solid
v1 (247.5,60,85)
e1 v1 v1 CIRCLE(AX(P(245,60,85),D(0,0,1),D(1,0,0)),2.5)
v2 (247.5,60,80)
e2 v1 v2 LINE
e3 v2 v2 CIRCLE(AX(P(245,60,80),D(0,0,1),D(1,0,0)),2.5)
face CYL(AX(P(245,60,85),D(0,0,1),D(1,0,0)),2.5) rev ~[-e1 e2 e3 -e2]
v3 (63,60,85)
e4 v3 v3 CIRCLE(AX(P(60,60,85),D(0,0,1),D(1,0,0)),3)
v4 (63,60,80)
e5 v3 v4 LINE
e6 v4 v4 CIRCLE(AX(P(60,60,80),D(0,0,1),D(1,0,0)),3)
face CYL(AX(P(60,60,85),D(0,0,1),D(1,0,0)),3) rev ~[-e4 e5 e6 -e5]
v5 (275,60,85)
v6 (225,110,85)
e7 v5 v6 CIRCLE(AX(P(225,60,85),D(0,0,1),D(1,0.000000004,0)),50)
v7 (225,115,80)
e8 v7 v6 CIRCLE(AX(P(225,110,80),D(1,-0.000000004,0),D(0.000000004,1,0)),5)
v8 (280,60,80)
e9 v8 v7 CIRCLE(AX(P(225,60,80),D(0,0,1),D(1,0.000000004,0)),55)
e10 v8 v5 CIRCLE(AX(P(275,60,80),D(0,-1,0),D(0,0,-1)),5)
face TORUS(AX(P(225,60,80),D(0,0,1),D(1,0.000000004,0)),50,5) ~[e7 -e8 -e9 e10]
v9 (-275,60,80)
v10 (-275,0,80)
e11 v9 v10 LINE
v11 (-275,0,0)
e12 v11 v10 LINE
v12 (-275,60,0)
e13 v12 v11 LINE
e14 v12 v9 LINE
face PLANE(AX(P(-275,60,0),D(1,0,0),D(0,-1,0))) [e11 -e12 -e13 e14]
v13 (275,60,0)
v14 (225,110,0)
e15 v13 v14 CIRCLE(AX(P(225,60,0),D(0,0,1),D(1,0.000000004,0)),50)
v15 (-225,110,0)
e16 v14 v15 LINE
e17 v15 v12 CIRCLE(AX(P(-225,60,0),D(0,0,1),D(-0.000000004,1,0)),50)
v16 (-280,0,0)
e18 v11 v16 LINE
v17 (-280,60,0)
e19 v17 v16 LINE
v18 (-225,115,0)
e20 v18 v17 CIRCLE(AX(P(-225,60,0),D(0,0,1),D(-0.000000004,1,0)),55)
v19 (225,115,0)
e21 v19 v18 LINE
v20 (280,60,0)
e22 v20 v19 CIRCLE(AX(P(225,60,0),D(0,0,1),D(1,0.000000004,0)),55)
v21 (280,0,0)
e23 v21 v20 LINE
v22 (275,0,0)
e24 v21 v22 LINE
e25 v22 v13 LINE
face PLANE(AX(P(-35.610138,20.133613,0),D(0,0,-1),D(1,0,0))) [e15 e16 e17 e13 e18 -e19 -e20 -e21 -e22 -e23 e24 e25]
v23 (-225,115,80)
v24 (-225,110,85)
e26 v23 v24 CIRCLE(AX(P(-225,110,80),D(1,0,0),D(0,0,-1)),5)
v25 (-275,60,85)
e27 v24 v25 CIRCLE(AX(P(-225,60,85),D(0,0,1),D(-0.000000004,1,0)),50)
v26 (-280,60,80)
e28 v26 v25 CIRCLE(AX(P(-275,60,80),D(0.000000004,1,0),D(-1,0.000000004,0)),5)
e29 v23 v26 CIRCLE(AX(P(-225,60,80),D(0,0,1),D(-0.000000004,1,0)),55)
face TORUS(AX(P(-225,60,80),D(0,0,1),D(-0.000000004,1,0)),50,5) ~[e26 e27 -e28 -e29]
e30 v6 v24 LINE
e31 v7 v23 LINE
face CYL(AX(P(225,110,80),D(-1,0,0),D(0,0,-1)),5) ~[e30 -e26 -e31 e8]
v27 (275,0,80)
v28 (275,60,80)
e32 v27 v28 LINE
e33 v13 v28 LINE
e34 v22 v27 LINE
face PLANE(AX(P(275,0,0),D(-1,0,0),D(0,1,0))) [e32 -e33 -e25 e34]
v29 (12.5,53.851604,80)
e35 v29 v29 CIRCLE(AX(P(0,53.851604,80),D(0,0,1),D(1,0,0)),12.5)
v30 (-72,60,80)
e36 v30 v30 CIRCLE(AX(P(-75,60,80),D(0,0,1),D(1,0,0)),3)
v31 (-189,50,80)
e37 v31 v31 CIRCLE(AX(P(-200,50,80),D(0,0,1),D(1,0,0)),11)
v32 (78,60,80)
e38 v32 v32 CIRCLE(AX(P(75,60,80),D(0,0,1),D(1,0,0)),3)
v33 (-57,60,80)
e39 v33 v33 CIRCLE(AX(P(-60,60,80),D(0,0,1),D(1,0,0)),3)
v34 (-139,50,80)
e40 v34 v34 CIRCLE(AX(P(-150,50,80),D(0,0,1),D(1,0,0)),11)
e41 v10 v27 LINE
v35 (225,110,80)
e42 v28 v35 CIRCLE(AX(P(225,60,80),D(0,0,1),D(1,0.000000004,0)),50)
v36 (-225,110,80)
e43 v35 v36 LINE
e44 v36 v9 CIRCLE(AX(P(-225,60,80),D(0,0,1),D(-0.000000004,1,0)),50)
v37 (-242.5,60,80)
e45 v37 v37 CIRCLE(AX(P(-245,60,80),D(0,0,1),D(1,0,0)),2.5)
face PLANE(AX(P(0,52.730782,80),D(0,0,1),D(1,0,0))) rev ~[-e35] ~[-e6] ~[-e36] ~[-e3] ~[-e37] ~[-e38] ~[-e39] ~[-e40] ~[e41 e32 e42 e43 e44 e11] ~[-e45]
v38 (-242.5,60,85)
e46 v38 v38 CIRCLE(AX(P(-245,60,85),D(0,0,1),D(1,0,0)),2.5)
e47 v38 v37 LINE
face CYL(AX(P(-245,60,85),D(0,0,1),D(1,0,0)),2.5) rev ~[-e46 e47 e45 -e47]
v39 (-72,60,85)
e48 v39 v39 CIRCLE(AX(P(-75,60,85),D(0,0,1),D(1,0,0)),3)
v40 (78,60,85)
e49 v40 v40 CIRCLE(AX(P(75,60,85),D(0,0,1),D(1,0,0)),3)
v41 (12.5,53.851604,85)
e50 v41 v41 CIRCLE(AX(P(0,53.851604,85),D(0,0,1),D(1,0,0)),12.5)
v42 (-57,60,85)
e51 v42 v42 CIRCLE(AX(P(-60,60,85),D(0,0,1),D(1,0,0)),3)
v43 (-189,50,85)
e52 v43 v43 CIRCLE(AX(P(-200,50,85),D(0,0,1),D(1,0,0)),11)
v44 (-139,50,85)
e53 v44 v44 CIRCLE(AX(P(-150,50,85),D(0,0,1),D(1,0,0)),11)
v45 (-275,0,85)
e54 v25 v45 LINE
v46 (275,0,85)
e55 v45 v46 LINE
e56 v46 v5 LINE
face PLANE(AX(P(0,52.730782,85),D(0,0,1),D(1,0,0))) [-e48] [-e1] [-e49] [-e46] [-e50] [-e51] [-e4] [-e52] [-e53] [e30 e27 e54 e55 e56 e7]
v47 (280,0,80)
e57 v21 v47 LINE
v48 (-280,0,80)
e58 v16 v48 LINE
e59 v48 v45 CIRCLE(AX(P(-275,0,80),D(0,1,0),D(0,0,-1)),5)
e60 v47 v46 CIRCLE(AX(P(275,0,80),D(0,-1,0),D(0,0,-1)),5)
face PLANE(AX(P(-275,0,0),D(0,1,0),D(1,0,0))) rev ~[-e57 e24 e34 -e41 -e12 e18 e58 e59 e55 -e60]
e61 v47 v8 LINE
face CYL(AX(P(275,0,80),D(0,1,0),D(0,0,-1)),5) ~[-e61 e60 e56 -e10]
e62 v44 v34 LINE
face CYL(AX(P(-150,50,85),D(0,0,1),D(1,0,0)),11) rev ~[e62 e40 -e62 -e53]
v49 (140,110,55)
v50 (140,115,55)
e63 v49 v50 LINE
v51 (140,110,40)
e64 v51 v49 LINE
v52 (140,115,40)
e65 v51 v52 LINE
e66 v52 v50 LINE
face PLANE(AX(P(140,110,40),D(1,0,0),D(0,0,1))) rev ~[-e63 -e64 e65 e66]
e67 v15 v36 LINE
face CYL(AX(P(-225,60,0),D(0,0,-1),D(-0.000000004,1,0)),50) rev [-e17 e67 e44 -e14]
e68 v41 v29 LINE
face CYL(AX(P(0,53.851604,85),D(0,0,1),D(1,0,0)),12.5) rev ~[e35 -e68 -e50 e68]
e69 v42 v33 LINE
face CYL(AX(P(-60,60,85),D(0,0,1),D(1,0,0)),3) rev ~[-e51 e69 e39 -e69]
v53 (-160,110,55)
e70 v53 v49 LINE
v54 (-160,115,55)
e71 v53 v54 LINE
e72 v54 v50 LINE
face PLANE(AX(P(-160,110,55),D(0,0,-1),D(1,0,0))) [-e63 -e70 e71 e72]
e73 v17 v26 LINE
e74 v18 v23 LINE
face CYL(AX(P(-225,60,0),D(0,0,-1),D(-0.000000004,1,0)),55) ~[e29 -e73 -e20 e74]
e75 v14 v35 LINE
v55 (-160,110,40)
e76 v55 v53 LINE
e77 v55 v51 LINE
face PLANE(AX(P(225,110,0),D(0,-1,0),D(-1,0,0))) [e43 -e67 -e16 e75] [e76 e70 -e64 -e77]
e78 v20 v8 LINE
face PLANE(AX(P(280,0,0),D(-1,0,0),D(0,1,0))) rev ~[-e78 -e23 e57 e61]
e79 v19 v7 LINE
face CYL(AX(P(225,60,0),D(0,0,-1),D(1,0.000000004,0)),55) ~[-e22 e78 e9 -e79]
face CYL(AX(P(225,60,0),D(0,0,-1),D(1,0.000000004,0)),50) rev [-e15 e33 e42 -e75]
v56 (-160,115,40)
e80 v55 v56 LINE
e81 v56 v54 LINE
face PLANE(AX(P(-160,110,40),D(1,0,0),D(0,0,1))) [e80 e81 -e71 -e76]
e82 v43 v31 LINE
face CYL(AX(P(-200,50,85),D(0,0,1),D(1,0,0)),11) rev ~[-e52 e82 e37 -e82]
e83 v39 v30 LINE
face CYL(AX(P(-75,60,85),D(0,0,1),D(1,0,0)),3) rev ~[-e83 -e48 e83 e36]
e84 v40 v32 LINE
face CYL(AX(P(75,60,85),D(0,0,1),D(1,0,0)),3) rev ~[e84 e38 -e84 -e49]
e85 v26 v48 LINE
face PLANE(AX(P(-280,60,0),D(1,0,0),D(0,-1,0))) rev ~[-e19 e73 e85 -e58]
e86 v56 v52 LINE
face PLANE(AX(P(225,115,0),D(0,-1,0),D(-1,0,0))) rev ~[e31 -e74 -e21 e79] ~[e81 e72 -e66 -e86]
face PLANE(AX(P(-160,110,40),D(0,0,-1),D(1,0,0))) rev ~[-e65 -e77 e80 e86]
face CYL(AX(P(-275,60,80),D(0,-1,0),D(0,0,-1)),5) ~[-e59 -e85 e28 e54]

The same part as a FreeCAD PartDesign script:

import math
import FreeCAD as App
import Part
import Sketcher

V = App.Vector
Q = App.Units.Quantity


def faces_at(feature, points):
    """Names of the faces that lie closest to the given points."""
    faces = feature.Shape.Faces
    near = lambda p: min(range(len(faces)), key=lambda i: faces[i].distToShape(Part.Vertex(*p))[0])
    return sorted({f"Face{near(p) + 1}" for p in points})

doc = App.newDocument("Part")
body = doc.addObject("PartDesign::Body", "Body")

# Sketch on XY plane
sketch1 = body.newObject("Sketcher::SketchObject", "Sketch")
sketch1.AttachmentSupport = (doc.getObject("XY_Plane"), [""])
sketch1.MapMode = "FlatFace"
sketch1.addGeometry([
    Part.LineSegment(V(275, 0, 0), V(275, 60, 0)),  # 0
    Part.ArcOfCircle(Part.Circle(V(225, 60, 0), V(0, 0, 1), 50), math.radians(0), math.radians(90)),  # 1
    Part.LineSegment(V(225, 110, 0), V(-225, 110, 0)),  # 2
    Part.ArcOfCircle(Part.Circle(V(-225, 60, 0), V(0, 0, 1), 50), math.radians(90), math.radians(180)),  # 3
    Part.LineSegment(V(-275, 60, 0), V(-275, 0, 0)),  # 4
    Part.LineSegment(V(-275, 0, 0), V(275, 0, 0)),  # 5
], False)
sketch1.addConstraint([
    Sketcher.Constraint("Tangent", 0, 2, 1, 1),
    Sketcher.Constraint("Tangent", 1, 2, 2, 1),
    Sketcher.Constraint("Tangent", 2, 2, 3, 1),
    Sketcher.Constraint("Tangent", 3, 2, 4, 1),
    Sketcher.Constraint("Coincident", 4, 2, 5, 1),
    Sketcher.Constraint("Coincident", 5, 2, 0, 1),
    Sketcher.Constraint("Vertical", 0),
    Sketcher.Constraint("Horizontal", 2),
    Sketcher.Constraint("Vertical", 4),
    Sketcher.Constraint("Horizontal", 5),
    Sketcher.Constraint("Equal", 1, 3),
    Sketcher.Constraint("Symmetric", 4, 2, 5, 2, -1, 1),
    Sketcher.Constraint("Radius", 1, Q("50 mm")),
    Sketcher.Constraint("DistanceX", 2, 2, 2, 1, Q("450 mm")),
    Sketcher.Constraint("DistanceY", 0, 1, 0, 2, Q("60 mm")),
])
pad1 = body.newObject("PartDesign::Pad", "Pad")
pad1.Profile = sketch1
pad1.Length = 80
doc.recompute()

thickness = body.newObject("PartDesign::Thickness", "Thickness")
thickness.Base = (pad1, faces_at(pad1, [(0, 0, 40)]))
thickness.Value = 5
thickness.Reversed = False
thickness.Join = "Arc"

# Sketch on XY plane
sketch2 = body.newObject("Sketcher::SketchObject", "Sketch001")
sketch2.AttachmentSupport = (doc.getObject("XY_Plane"), [""])
sketch2.MapMode = "FlatFace"
sketch2.AttachmentOffset = App.Placement(V(0, 0, 85), App.Rotation())
sketch2.addGeometry([
    Part.Circle(V(-200, 50, 0), V(0, 0, 1), 11),
    Part.Circle(V(-150, 50, 0), V(0, 0, 1), 11),
    Part.Circle(V(-245, 60, 0), V(0, 0, 1), 2.5),
    Part.Circle(V(245, 60, 0), V(0, 0, 1), 2.5),
], False)
sketch2.addConstraint([
    Sketcher.Constraint("Equal", 0, 1),
    Sketcher.Constraint("Equal", 2, 3),
    Sketcher.Constraint("Symmetric", 2, 3, 3, 3, -2),
    Sketcher.Constraint("Horizontal", 0, 3, 1, 3),
    Sketcher.Constraint("Diameter", 0, Q("22 mm")),
    Sketcher.Constraint("Diameter", 2, Q("5 mm")),
    Sketcher.Constraint("DistanceX", 0, 3, -1, 1, Q("200 mm")),
    Sketcher.Constraint("DistanceY", -1, 1, 0, 3, Q("50 mm")),
    Sketcher.Constraint("DistanceX", 1, 3, -1, 1, Q("150 mm")),
    Sketcher.Constraint("DistanceX", 2, 3, -1, 1, Q("245 mm")),
    Sketcher.Constraint("DistanceY", -1, 1, 2, 3, Q("60 mm")),
])
pocket1 = body.newObject("PartDesign::Pocket", "Pocket")
pocket1.Profile = sketch2
pocket1.Length = 5

# Sketch on XZ plane
sketch3 = body.newObject("Sketcher::SketchObject", "Sketch002")
sketch3.AttachmentSupport = (doc.getObject("XZ_Plane"), [""])
sketch3.MapMode = "FlatFace"
sketch3.AttachmentOffset = App.Placement(V(0, 0, -110), App.Rotation())
sketch3.addGeometry([
    Part.LineSegment(V(-160, 55, 0), V(-160, 40, 0)),
    Part.LineSegment(V(-160, 40, 0), V(140, 40, 0)),
    Part.LineSegment(V(140, 40, 0), V(140, 55, 0)),
    Part.LineSegment(V(140, 55, 0), V(-160, 55, 0)),
], False)
sketch3.addConstraint([
    Sketcher.Constraint("Coincident", 0, 2, 1, 1),
    Sketcher.Constraint("Coincident", 1, 2, 2, 1),
    Sketcher.Constraint("Coincident", 2, 2, 3, 1),
    Sketcher.Constraint("Coincident", 3, 2, 0, 1),
    Sketcher.Constraint("Vertical", 0),
    Sketcher.Constraint("Horizontal", 1),
    Sketcher.Constraint("Vertical", 2),
    Sketcher.Constraint("Horizontal", 3),
    Sketcher.Constraint("DistanceX", 1, 1, 1, 2, Q("300 mm")),
    Sketcher.Constraint("DistanceY", 0, 2, 0, 1, Q("15 mm")),
    Sketcher.Constraint("DistanceX", 0, 2, -1, 1, Q("160 mm")),
    Sketcher.Constraint("DistanceY", -1, 1, 0, 2, Q("40 mm")),
])
pocket2 = body.newObject("PartDesign::Pocket", "Pocket001")
pocket2.Profile = sketch3
pocket2.Length = 5

# Sketch on XY plane
sketch4 = body.newObject("Sketcher::SketchObject", "Sketch003")
sketch4.AttachmentSupport = (doc.getObject("XY_Plane"), [""])
sketch4.MapMode = "FlatFace"
sketch4.AttachmentOffset = App.Placement(V(0, 0, -5), App.Rotation())
sketch4.addGeometry([
    Part.LineSegment(V(-401, -136, 0), V(-401, 177, 0)),
    Part.LineSegment(V(-401, 177, 0), V(329, 177, 0)),
    Part.LineSegment(V(329, 177, 0), V(329, -136, 0)),
    Part.LineSegment(V(329, -136, 0), V(-401, -136, 0)),
], False)
sketch4.addConstraint([
    Sketcher.Constraint("Coincident", 0, 2, 1, 1),
    Sketcher.Constraint("Coincident", 1, 2, 2, 1),
    Sketcher.Constraint("Coincident", 2, 2, 3, 1),
    Sketcher.Constraint("Coincident", 3, 2, 0, 1),
    Sketcher.Constraint("Vertical", 0),
    Sketcher.Constraint("Horizontal", 1),
    Sketcher.Constraint("Vertical", 2),
    Sketcher.Constraint("Horizontal", 3),
    Sketcher.Constraint("DistanceX", 1, 1, 1, 2, Q("729.94403 mm")),
    Sketcher.Constraint("DistanceY", -1, 1, 0, 2, Q("176.5502 mm")),
    Sketcher.Constraint("DistanceY", 0, 1, 0, 2, Q("312.833175 mm")),
    Sketcher.Constraint("DistanceX", 0, 2, -1, 1, Q("400.582153 mm")),
])
pocket3 = body.newObject("PartDesign::Pocket", "Pocket002")
pocket3.Profile = sketch4
pocket3.Length = 5
pocket3.Reversed = True

# Sketch on XY plane
sketch5 = body.newObject("Sketcher::SketchObject", "Sketch004")
sketch5.AttachmentSupport = (doc.getObject("XY_Plane"), [""])
sketch5.MapMode = "FlatFace"
sketch5.AttachmentOffset = App.Placement(V(0, 0, 85), App.Rotation())
sketch5.addGeometry([
    Part.Circle(V(-75, 60, 0), V(0, 0, 1), 3),
    Part.Circle(V(-60, 60, 0), V(0, 0, 1), 3),
    Part.Circle(V(60, 60, 0), V(0, 0, 1), 3),
    Part.Circle(V(75, 60, 0), V(0, 0, 1), 3),
], False)
sketch5.addConstraint([
    Sketcher.Constraint("Equal", 0, 1),
    Sketcher.Constraint("Equal", 1, 2),
    Sketcher.Constraint("Equal", 2, 3),
    Sketcher.Constraint("Symmetric", 1, 3, 2, 3, -2),
    Sketcher.Constraint("Symmetric", 0, 3, 3, 3, -2),
    Sketcher.Constraint("Horizontal", 0, 3, 1, 3),
    Sketcher.Constraint("Diameter", 0, Q("6 mm")),
    Sketcher.Constraint("DistanceX", 0, 3, -1, 1, Q("75 mm")),
    Sketcher.Constraint("DistanceY", -1, 1, 0, 3, Q("60 mm")),
    Sketcher.Constraint("DistanceX", 1, 3, -1, 1, Q("60 mm")),
])
pocket4 = body.newObject("PartDesign::Pocket", "Pocket003")
pocket4.Profile = sketch5
pocket4.Length = 25

# Sketch on XY plane
sketch6 = body.newObject("Sketcher::SketchObject", "Sketch005")
sketch6.AttachmentSupport = (doc.getObject("XY_Plane"), [""])
sketch6.MapMode = "FlatFace"
sketch6.AttachmentOffset = App.Placement(V(0, 0, 85), App.Rotation())
sketch6.addGeometry(Part.Circle(V(0, 54, 0), V(0, 0, 1), 12), False)
sketch6.addConstraint([
    Sketcher.Constraint("PointOnObject", 0, 3, -2),
    Sketcher.Constraint("Diameter", 0, Q("25 mm")),
    Sketcher.Constraint("DistanceY", -1, 1, 0, 3, Q("53.851604 mm")),
])
pocket5 = body.newObject("PartDesign::Pocket", "Pocket004")
pocket5.Profile = sketch6
pocket5.Length = 5

doc.recompute()
